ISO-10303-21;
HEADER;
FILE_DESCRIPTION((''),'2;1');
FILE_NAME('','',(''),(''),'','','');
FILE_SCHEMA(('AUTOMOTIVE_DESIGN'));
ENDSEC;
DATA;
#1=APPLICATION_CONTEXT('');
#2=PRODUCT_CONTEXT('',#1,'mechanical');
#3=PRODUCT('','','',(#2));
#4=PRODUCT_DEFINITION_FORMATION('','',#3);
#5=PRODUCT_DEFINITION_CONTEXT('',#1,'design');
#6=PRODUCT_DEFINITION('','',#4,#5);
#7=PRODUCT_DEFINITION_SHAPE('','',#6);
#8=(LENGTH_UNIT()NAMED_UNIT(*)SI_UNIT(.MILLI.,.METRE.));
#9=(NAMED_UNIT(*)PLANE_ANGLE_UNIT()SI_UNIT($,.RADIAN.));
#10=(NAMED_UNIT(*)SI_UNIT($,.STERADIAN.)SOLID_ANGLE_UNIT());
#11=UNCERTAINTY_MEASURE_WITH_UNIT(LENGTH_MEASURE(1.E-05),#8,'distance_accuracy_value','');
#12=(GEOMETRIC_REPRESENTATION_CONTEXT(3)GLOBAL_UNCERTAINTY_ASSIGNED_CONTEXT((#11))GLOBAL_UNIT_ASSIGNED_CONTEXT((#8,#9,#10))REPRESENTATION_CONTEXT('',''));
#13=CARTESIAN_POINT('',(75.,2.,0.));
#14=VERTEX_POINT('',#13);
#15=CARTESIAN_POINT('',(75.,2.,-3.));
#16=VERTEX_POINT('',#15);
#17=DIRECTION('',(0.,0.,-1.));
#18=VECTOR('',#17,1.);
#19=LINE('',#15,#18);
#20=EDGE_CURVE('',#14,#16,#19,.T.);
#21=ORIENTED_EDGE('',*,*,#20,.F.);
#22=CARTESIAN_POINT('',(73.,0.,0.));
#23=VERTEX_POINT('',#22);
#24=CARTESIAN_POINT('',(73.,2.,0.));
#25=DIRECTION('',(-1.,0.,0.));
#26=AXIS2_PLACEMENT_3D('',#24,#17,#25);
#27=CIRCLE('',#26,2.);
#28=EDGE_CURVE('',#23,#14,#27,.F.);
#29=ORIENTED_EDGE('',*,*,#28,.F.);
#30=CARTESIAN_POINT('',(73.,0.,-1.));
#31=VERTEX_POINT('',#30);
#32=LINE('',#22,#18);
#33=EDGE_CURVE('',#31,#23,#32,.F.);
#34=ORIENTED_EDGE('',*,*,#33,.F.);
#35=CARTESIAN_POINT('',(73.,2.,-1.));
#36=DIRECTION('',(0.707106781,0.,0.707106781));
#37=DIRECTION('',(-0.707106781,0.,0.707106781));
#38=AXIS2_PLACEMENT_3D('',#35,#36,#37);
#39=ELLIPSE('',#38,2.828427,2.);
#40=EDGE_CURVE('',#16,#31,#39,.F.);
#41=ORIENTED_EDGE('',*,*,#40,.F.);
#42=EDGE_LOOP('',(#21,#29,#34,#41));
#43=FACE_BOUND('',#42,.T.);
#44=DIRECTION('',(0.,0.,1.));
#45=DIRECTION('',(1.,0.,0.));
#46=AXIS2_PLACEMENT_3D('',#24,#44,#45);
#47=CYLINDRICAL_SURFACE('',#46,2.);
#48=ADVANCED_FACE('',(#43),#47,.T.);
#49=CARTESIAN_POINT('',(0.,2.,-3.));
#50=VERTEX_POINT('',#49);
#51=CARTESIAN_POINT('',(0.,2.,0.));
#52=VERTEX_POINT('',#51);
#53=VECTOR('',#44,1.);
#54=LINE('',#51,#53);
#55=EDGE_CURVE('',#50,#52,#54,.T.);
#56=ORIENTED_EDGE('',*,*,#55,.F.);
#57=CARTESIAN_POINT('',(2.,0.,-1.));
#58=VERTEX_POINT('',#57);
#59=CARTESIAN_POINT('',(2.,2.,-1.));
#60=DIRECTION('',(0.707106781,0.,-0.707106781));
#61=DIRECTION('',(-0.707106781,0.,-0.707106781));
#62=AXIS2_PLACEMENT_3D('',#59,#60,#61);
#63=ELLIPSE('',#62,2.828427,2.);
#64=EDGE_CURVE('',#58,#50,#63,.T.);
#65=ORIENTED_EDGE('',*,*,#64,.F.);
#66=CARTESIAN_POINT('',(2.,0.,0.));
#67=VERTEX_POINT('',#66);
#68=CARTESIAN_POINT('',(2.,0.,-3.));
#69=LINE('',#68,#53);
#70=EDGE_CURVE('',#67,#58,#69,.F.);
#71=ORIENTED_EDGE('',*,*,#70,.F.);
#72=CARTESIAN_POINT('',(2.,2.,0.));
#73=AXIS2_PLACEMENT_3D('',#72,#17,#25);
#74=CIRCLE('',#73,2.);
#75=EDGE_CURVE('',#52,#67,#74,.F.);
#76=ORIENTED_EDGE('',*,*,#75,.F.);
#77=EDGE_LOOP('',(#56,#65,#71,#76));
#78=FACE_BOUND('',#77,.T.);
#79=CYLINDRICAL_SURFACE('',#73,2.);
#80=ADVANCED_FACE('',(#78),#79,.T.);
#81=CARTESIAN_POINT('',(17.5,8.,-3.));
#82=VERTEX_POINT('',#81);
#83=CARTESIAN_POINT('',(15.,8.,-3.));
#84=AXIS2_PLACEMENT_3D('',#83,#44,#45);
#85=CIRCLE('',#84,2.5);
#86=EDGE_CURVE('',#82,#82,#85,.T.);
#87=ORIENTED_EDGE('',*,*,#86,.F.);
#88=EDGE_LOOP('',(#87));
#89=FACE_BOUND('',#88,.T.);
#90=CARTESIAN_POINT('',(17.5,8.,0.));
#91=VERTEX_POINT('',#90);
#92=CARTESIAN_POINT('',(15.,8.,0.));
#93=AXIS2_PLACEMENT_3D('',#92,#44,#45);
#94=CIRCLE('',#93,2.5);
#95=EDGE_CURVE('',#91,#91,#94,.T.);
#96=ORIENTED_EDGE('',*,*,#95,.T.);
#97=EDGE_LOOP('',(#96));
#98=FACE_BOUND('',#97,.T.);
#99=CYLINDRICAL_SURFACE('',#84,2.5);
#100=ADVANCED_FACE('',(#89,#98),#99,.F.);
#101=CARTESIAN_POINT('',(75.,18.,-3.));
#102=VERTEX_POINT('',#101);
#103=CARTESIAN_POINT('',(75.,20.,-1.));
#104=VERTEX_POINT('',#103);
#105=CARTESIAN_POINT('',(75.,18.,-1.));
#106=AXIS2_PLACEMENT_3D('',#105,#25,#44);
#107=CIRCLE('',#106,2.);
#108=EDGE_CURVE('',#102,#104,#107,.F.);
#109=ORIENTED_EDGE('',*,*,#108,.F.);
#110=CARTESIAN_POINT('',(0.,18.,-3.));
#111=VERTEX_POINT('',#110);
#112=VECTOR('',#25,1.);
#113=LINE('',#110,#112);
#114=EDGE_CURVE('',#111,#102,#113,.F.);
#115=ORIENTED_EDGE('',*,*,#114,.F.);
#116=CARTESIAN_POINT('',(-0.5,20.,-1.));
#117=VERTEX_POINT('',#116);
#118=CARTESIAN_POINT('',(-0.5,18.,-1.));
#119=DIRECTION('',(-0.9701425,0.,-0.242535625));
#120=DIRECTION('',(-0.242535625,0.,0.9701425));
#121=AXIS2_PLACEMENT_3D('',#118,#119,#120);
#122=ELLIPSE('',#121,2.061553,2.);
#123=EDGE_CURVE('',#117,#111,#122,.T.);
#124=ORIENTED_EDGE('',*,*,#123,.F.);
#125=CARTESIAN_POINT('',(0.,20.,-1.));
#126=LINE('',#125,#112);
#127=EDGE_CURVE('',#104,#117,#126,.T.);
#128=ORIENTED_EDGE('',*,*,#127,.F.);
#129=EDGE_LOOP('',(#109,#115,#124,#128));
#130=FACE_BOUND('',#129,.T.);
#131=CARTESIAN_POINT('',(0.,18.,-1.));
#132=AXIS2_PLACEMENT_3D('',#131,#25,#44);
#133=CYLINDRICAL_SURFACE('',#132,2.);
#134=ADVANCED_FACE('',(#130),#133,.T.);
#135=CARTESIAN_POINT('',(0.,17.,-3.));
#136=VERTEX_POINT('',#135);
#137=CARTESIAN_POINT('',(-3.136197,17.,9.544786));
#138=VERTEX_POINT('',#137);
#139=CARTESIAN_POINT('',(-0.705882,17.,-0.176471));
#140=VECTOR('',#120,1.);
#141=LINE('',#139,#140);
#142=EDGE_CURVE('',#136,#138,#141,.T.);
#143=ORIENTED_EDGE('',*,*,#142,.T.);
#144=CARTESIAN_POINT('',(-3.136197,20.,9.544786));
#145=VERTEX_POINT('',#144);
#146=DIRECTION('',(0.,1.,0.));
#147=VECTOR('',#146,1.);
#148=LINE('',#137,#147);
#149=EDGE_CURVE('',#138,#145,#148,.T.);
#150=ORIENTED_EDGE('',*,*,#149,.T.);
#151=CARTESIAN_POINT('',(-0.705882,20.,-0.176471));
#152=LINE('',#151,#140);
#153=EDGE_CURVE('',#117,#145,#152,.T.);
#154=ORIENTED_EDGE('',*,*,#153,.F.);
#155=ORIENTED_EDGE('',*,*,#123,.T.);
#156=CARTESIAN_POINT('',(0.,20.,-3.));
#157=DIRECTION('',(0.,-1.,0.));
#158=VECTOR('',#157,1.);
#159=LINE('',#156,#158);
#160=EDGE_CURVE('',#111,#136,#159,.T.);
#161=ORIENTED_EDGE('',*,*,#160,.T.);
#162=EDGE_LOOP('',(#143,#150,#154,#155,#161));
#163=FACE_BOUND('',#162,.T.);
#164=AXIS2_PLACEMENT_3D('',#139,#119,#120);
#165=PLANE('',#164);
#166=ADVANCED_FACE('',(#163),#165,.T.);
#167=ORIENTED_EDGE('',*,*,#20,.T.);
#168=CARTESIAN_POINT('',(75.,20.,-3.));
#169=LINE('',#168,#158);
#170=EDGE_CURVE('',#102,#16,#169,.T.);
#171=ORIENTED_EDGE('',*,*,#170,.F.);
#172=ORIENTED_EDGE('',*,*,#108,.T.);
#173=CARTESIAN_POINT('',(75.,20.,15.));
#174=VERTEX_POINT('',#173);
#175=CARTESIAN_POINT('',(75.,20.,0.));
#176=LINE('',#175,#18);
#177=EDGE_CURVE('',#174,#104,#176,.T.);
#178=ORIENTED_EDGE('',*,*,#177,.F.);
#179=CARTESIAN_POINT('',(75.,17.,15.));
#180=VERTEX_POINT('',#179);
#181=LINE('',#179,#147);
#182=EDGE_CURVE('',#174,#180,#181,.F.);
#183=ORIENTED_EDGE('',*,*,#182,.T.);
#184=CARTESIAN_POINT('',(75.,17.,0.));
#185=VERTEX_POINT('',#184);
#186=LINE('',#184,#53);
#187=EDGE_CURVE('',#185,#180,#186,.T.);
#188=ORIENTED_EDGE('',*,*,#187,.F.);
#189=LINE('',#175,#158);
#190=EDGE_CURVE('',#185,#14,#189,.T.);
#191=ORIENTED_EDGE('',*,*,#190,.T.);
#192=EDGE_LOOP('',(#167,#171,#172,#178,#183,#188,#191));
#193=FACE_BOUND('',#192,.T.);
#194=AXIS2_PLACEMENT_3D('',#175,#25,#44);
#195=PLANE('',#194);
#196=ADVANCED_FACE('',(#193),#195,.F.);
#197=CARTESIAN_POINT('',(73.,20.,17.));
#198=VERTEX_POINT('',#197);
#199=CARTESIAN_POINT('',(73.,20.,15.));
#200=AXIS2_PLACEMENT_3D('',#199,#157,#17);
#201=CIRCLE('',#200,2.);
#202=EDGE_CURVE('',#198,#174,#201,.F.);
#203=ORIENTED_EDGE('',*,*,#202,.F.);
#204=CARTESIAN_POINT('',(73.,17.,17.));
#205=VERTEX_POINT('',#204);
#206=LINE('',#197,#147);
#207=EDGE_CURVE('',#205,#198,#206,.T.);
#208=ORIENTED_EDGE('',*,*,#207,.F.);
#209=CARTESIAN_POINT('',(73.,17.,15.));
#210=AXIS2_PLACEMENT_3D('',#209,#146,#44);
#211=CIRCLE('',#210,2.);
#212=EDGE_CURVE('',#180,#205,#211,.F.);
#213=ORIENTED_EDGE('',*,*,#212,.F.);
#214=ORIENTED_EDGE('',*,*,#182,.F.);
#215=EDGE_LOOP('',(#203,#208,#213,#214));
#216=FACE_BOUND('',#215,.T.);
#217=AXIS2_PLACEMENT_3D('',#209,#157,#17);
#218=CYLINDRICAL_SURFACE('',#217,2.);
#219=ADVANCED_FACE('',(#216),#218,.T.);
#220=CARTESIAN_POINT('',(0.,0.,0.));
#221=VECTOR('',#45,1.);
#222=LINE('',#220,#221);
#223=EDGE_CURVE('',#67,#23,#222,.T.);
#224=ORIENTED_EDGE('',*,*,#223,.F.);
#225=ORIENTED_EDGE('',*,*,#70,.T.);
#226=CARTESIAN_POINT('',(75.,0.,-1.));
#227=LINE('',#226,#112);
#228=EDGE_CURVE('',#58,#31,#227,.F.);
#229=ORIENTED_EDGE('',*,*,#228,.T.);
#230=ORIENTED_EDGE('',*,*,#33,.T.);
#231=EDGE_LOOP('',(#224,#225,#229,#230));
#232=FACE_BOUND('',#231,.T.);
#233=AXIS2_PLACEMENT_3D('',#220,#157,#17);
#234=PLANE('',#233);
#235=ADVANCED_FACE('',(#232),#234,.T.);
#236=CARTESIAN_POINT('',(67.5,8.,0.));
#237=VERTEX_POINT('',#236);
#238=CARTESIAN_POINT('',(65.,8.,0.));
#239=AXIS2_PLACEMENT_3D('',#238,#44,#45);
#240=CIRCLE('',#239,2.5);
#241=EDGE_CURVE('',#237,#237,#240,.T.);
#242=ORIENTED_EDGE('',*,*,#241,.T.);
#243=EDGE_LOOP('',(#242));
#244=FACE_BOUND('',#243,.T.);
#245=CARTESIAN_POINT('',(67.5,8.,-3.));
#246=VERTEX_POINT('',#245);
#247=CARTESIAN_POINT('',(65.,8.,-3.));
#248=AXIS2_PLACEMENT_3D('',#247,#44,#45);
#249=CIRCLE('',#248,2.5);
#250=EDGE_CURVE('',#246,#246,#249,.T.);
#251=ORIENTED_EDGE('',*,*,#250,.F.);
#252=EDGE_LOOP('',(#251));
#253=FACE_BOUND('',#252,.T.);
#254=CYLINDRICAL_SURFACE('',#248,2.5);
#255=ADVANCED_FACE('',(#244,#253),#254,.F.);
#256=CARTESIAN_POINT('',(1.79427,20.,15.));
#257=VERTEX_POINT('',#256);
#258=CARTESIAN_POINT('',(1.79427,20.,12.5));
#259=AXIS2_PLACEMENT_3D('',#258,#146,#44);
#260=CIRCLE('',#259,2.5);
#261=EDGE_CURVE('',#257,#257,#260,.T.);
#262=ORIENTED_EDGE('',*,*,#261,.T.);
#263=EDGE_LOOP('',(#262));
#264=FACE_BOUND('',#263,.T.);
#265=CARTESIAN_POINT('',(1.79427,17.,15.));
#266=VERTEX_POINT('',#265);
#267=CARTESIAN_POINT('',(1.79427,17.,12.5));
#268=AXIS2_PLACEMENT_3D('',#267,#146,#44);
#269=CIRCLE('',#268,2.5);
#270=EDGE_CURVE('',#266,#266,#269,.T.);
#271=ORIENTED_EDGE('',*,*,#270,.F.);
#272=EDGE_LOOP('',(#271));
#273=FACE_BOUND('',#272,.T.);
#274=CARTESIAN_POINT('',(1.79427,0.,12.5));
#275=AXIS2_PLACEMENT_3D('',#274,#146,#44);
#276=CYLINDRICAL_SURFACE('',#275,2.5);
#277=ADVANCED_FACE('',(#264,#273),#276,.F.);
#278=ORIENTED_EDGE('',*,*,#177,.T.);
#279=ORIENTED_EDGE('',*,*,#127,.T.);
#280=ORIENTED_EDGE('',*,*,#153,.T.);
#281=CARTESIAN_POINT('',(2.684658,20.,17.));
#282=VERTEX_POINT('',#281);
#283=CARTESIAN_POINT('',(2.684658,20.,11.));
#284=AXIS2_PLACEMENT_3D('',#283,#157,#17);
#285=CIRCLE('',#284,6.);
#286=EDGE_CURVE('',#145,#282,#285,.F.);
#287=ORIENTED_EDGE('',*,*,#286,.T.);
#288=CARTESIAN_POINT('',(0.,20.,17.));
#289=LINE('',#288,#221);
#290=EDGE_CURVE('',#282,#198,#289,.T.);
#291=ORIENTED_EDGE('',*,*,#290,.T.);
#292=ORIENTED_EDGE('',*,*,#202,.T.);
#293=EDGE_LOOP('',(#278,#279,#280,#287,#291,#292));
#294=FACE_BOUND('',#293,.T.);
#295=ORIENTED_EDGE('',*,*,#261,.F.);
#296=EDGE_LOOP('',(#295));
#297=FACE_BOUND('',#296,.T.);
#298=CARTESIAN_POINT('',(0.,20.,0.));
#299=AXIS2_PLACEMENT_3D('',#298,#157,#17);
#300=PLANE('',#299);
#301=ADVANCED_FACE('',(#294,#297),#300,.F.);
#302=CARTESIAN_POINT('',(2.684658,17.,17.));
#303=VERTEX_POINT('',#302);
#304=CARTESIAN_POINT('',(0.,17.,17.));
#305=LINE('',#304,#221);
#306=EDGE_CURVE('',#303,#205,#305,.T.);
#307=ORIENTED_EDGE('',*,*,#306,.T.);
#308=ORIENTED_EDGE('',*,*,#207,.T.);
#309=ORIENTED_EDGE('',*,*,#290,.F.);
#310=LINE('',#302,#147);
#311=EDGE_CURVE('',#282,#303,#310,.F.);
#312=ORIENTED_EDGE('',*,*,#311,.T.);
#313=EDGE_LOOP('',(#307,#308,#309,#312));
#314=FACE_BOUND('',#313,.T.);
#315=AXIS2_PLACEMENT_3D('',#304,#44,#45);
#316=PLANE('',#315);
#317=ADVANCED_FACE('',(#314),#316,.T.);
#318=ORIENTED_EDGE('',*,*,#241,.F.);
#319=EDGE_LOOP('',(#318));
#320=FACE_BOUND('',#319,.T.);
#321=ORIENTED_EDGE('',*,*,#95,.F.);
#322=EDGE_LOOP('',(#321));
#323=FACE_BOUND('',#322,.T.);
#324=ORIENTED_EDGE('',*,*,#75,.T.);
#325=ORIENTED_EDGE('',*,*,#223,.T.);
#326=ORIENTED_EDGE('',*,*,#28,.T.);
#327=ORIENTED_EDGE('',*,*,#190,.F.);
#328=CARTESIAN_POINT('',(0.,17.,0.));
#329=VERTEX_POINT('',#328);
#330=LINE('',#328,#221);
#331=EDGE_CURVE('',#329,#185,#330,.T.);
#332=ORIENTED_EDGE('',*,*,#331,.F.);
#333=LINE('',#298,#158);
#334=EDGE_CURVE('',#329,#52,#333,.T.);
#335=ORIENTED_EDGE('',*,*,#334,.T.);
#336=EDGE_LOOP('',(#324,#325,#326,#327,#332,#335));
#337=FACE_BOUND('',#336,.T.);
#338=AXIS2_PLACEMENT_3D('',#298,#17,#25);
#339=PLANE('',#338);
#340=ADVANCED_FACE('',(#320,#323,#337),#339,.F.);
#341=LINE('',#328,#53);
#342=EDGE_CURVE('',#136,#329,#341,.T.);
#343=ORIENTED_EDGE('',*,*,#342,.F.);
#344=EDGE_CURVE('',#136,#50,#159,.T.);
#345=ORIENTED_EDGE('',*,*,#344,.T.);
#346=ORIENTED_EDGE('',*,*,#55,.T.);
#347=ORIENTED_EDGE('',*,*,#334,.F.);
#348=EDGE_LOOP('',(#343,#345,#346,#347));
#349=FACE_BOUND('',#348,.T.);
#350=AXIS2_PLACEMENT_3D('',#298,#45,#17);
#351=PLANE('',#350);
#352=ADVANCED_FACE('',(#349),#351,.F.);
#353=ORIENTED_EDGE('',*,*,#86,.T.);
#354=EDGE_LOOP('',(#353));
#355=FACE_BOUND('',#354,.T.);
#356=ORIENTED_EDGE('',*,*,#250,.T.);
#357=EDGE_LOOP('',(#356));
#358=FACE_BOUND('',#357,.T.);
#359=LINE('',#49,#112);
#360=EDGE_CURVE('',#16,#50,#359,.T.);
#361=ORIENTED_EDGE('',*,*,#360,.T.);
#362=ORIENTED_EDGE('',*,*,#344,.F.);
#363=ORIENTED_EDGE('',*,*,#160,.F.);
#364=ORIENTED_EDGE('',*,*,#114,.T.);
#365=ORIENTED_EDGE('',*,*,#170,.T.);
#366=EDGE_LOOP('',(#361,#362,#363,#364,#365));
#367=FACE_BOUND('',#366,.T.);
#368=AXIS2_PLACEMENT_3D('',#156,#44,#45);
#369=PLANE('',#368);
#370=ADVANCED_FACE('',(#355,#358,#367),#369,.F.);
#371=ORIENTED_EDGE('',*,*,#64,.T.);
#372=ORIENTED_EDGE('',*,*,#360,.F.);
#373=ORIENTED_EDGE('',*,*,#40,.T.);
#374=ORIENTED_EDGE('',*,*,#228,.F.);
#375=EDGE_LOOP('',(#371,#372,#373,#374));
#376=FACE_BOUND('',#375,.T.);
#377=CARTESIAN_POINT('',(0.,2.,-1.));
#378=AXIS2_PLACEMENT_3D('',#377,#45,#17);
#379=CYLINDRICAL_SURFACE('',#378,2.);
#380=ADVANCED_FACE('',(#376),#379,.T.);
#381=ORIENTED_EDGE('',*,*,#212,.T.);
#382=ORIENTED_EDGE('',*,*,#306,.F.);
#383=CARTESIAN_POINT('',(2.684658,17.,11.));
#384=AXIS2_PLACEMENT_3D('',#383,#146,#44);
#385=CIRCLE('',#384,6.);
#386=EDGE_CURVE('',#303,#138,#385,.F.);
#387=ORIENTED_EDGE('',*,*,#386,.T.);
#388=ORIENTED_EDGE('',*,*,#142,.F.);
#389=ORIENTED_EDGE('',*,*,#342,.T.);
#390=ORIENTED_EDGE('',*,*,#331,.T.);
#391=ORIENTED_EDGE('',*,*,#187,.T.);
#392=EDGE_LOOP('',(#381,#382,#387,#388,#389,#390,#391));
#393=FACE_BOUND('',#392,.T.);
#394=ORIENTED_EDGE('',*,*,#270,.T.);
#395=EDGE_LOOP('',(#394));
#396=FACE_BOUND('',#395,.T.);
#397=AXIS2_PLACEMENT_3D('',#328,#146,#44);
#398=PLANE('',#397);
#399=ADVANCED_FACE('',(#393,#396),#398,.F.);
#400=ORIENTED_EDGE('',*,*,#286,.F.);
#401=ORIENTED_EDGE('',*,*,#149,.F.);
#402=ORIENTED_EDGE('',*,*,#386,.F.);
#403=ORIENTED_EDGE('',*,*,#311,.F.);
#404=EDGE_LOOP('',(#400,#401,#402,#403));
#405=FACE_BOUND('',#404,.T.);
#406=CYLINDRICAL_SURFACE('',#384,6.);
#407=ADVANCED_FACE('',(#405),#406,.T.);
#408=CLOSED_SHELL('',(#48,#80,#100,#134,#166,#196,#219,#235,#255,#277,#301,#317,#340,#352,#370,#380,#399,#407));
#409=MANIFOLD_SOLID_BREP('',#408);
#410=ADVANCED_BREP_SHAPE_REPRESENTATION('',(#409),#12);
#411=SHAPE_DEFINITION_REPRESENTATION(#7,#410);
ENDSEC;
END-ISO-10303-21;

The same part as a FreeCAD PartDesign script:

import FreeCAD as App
import Part
import Sketcher
from FreeCAD import Vector


def edges_at(feature, points):
    """Names of the edges that pass closest to the given points."""
    edges = feature.Shape.Edges
    near = lambda p: min(range(len(edges)), key=lambda i: edges[i].distToShape(Part.Vertex(*p))[0])
    return sorted({f"Edge{near(p) + 1}" for p in points})

doc = App.newDocument("Part")
body = doc.addObject("PartDesign::Body", "Body")

# Sketch on XZ plane
sketch1 = body.newObject("Sketcher::SketchObject", "Sketch")
sketch1.AttachmentSupport = (doc.getObject("XZ_Plane"), [""])
sketch1.MapMode = "FlatFace"
sketch1.addGeometry([
    Part.LineSegment(Vector(0, -3, 0), Vector(0, 0, 0)),
    Part.LineSegment(Vector(0, 0, 0), Vector(75, 0, 0)),
    Part.LineSegment(Vector(75, 0, 0), Vector(75, -3, 0)),
    Part.LineSegment(Vector(75, -3, 0), Vector(0, -3, 0)),
], False)
sketch1.addConstraint([
    Sketcher.Constraint("Coincident", 0, 2, 1, 1),
    Sketcher.Constraint("Coincident", 1, 2, 2, 1),
    Sketcher.Constraint("Coincident", 2, 2, 3, 1),
    Sketcher.Constraint("Coincident", 3, 2, 0, 1),
    Sketcher.Constraint("Vertical", 0),
    Sketcher.Constraint("Horizontal", 1),
    Sketcher.Constraint("Vertical", 2),
    Sketcher.Constraint("Horizontal", 3),
    Sketcher.Constraint("Coincident", 0, 2, -1, 1),
    Sketcher.Constraint("DistanceX", 1, 1, 1, 2, 75.0),
    Sketcher.Constraint("DistanceY", 0, 1, 0, 2, 3.0),
])
pad1 = body.newObject("PartDesign::Pad", "Pad")
pad1.Profile = sketch1
pad1.Length = 20
pad1.Reversed = True

# Sketch on XZ plane
sketch2 = body.newObject("Sketcher::SketchObject", "Sketch001")
sketch2.AttachmentSupport = (doc.getObject("XZ_Plane"), [""])
sketch2.MapMode = "FlatFace"
sketch2.AttachmentOffset = App.Placement(Vector(0, 0, -20), App.Rotation())
sketch2.addGeometry([
    Part.LineSegment(Vector(0, -3, 0), Vector(-5, 17, 0)),  # 0
    Part.LineSegment(Vector(-5, 17, 0), Vector(75, 17, 0)),  # 1
    Part.LineSegment(Vector(75, 17, 0), Vector(75, 0, 0)),  # 2
    Part.LineSegment(Vector(75, 0, 0), Vector(0, 0, 0)),  # 3
    Part.LineSegment(Vector(0, 0, 0), Vector(0, -3, 0)),  # 4
], False)
sketch2.addConstraint([
    Sketcher.Constraint("Coincident", 0, 2, 1, 1),
    Sketcher.Constraint("Coincident", 1, 2, 2, 1),
    Sketcher.Constraint("Coincident", 2, 2, 3, 1),
    Sketcher.Constraint("Coincident", 3, 2, 4, 1),
    Sketcher.Constraint("Coincident", 4, 2, 0, 1),
    Sketcher.Constraint("Horizontal", 1),
    Sketcher.Constraint("Vertical", 2),
    Sketcher.Constraint("Horizontal", 3),
    Sketcher.Constraint("Vertical", 4),
    Sketcher.Constraint("Coincident", 3, 2, -1, 1),
    Sketcher.Constraint("DistanceX", 1, 1, 1, 2, 80.0),
    Sketcher.Constraint("DistanceX", 3, 2, 3, 1, 75.0),
    Sketcher.Constraint("DistanceY", 2, 2, 2, 1, 17.0),
    Sketcher.Constraint("DistanceY", 4, 2, 4, 1, 3.0),
])
pad2 = body.newObject("PartDesign::Pad", "Pad001")
pad2.Profile = sketch2
pad2.Length = 3
doc.recompute()

fillet = body.newObject("PartDesign::Fillet", "Fillet")
fillet.Base = (pad2, edges_at(pad2, [(-5, 18.5, 17)]))
fillet.Radius = 6
doc.recompute()

fillet2 = body.newObject("PartDesign::Fillet", "Fillet001")
fillet2.Base = (fillet, edges_at(fillet, [
    (37.5, 20, -3),
    (75, 18.5, 17),
    (37.5, 0, -3),
    (75, 0, -1.5),
    (0, 0, -1.5),
]))
fillet2.Radius = 2

# Sketch on XZ plane
sketch3 = body.newObject("Sketcher::SketchObject", "Sketch002")
sketch3.AttachmentSupport = (doc.getObject("XZ_Plane"), [""])
sketch3.MapMode = "FlatFace"
sketch3.AttachmentOffset = App.Placement(Vector(0, 0, -20), App.Rotation())
sketch3.addGeometry(Part.Circle(Vector(1.8, 12.5, 0), Vector(0, 0, 1), 2.5), False)
sketch3.addConstraint([
    Sketcher.Constraint("Diameter", 0, 5.0),
    Sketcher.Constraint("DistanceY", -1, 1, 0, 3, 12.5),
    Sketcher.Constraint("DistanceX", -1, 1, 0, 3, 1.79427),
])
pocket1 = body.newObject("PartDesign::Pocket", "Pocket")
pocket1.Profile = sketch3
pocket1.Type = "ThroughAll"
pocket1.Reversed = True

# Sketch on XY plane
sketch4 = body.newObject("Sketcher::SketchObject", "Sketch003")
sketch4.AttachmentSupport = (doc.getObject("XY_Plane"), [""])
sketch4.MapMode = "FlatFace"
sketch4.addGeometry([
    Part.Circle(Vector(65, 8, 0), Vector(0, 0, 1), 2.5),
    Part.Circle(Vector(15, 8, 0), Vector(0, 0, 1), 2.5),
], False)
sketch4.addConstraint([
    Sketcher.Constraint("Equal", 0, 1),
    Sketcher.Constraint("Horizontal", 0, 3, 1, 3),
    Sketcher.Constraint("Diameter", 0, 5.0),
    Sketcher.Constraint("DistanceX", -1, 1, 0, 3, 65.0),
    Sketcher.Constraint("DistanceY", -1, 1, 0, 3, 8.0),
    Sketcher.Constraint("DistanceX", -1, 1, 1, 3, 15.0),
])
pocket2 = body.newObject("PartDesign::Pocket", "Pocket001")
pocket2.Profile = sketch4
pocket2.Type = "ThroughAll"

doc.recompute()
